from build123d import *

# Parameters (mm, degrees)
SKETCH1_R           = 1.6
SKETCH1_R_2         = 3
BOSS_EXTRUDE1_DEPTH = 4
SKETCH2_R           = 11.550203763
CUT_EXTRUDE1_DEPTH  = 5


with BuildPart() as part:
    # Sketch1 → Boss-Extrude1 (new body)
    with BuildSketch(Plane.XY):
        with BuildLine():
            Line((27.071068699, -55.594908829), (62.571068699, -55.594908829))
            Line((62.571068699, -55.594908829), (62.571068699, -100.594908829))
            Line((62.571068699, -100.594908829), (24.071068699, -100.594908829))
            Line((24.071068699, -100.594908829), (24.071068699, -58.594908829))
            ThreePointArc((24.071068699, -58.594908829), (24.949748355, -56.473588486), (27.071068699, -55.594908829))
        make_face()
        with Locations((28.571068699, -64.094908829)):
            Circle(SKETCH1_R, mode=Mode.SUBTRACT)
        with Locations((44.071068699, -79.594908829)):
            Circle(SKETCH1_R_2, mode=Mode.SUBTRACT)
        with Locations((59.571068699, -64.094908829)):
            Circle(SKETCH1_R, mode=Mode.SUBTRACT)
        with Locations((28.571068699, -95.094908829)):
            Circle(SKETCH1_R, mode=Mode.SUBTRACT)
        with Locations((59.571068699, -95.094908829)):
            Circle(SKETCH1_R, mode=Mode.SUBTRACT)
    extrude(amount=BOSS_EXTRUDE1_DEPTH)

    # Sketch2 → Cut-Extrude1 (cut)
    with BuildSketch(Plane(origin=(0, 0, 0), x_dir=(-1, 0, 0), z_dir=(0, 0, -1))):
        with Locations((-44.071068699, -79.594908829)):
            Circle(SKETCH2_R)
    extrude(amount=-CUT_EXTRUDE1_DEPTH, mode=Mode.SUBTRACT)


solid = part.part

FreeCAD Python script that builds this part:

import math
import FreeCAD as App
import Part
import Sketcher

V = App.Vector
Q = App.Units.Quantity

doc = App.newDocument("Part")
body = doc.addObject("PartDesign::Body", "Body")

sketch1 = doc.addObject("Sketcher::SketchObject", "Sketch")
body.addObject(sketch1)
sketch1.AttachmentSupport = (doc.XY_Plane, [""])
sketch1.MapMode = "FlatFace"
sketch1.addGeometry([
    Part.LineSegment(V(62.6, -55.6, 0), V(27.1, -55.6, 0)),
    Part.ArcOfCircle(Part.Circle(V(27.1, -58.6, 0), V(0, 0, 1), 3), math.radians(90), math.radians(180)),
    Part.LineSegment(V(24.1, -58.6, 0), V(24.1, -100.6, 0)),
    Part.LineSegment(V(24.1, -100.6, 0), V(62.6, -100.6, 0)),
    Part.LineSegment(V(62.6, -100.6, 0), V(62.6, -55.6, 0)),
    Part.Circle(V(59.6, -95.1, 0), V(0, 0, 1), 1.6),
    Part.Circle(V(28.6, -95.1, 0), V(0, 0, 1), 1.6),
    Part.Circle(V(59.6, -64.1, 0), V(0, 0, 1), 1.6),
    Part.Circle(V(44.1, -79.6, 0), V(0, 0, 1), 3),
    Part.Circle(V(28.6, -64.1, 0), V(0, 0, 1), 1.6),
], False)
sketch1.addConstraint([
    Sketcher.Constraint("Tangent", 0, 2, 1, 1),
    Sketcher.Constraint("Tangent", 1, 2, 2, 1),
    Sketcher.Constraint("Coincident", 2, 2, 3, 1),
    Sketcher.Constraint("Coincident", 3, 2, 4, 1),
    Sketcher.Constraint("Coincident", 4, 2, 0, 1),
    Sketcher.Constraint("Horizontal", 0),
    Sketcher.Constraint("Vertical", 2),
    Sketcher.Constraint("Horizontal", 3),
    Sketcher.Constraint("Vertical", 4),
    Sketcher.Constraint("Equal", 5, 6),
    Sketcher.Constraint("Equal", 6, 7),
    Sketcher.Constraint("Equal", 1, 8),
    Sketcher.Constraint("Equal", 7, 9),
    Sketcher.Constraint("Horizontal", 5, 3, 6, 3),
    Sketcher.Constraint("Horizontal", 7, 3, 9, 3),
    Sketcher.Constraint("Vertical", 5, 3, 7, 3),
    Sketcher.Constraint("Vertical", 6, 3, 9, 3),
    Sketcher.Constraint("Diameter", 8, Q("6 mm")),
    Sketcher.Constraint("Diameter", 5, Q("3.2 mm")),
    Sketcher.Constraint("DistanceY", 2, 2, 2, 1, Q("42 mm")),
    Sketcher.Constraint("DistanceX", 0, 2, 0, 1, Q("35.5 mm")),
    Sketcher.Constraint("DistanceX", 6, 3, 5, 3, Q("31 mm")),
    Sketcher.Constraint("DistanceY", 5, 3, 7, 3, Q("31 mm")),
    Sketcher.Constraint("DistanceX", 1, 3, 8, 3, Q("17 mm")),
    Sketcher.Constraint("DistanceY", 8, 3, 1, 3, Q("21 mm")),
    Sketcher.Constraint("DistanceX", 5, 3, 3, 2, Q("3 mm")),
    Sketcher.Constraint("DistanceY", 5, 3, 1, 3, Q("36.5 mm")),
    Sketcher.Constraint("DistanceX", -1, 1, 1, 3, Q("27.071069 mm")),
    Sketcher.Constraint("DistanceY", 1, 3, -1, 1, Q("58.594909 mm")),
])
pad1 = doc.addObject("PartDesign::Pad", "Pad")
body.addObject(pad1)
pad1.Profile = sketch1
pad1.Length = 4

sketch2 = doc.addObject("Sketcher::SketchObject", "Sketch001")
body.addObject(sketch2)
sketch2.AttachmentSupport = (doc.XY_Plane, [""])
sketch2.MapMode = "FlatFace"
sketch2.addGeometry(Part.Circle(V(44, -80, 0), V(0, 0, 1), 12), False)
sketch2.addConstraint([
    Sketcher.Constraint("Diameter", 0, Q("23.100408 mm")),
    Sketcher.Constraint("DistanceX", -1, 1, 0, 3, Q("44.071069 mm")),
    Sketcher.Constraint("DistanceY", 0, 3, -1, 1, Q("79.594909 mm")),
])
pocket1 = doc.addObject("PartDesign::Pocket", "Pocket")
body.addObject(pocket1)
pocket1.Profile = sketch2
pocket1.Length = 5
pocket1.Reversed = True

doc.recompute()
